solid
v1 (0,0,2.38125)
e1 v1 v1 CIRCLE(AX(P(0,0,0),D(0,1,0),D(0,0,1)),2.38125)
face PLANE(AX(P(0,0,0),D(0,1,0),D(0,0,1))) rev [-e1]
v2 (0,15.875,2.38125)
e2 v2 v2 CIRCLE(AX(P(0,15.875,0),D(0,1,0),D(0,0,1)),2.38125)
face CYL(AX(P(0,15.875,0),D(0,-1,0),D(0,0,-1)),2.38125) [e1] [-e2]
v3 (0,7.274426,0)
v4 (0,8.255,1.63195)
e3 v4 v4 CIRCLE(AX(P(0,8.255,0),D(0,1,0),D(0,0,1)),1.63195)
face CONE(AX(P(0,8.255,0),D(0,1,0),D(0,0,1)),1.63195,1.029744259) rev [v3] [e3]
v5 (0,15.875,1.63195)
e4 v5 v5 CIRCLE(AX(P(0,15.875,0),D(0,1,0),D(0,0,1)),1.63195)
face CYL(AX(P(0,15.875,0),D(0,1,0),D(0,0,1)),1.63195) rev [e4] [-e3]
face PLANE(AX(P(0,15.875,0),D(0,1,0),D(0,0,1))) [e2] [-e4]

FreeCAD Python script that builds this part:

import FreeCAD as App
import Part
import Sketcher

V = App.Vector
Q = App.Units.Quantity

doc = App.newDocument("Part")
body = doc.addObject("PartDesign::Body", "Body")

sketch1 = body.newObject("Sketcher::SketchObject", "Sketch")
sketch1.AttachmentSupport = (doc.getObject("XZ_Plane"), [""])
sketch1.MapMode = "FlatFace"
sketch1.addGeometry(Part.Circle(V(0, 0, 0), V(0, 0, 1), 2.4), False)
sketch1.addConstraint(Sketcher.Constraint("Coincident", 0, 3, -1, 1))
sketch1.addConstraint(Sketcher.Constraint("Diameter", 0, Q("0.1875 in")))
pad1 = body.newObject("PartDesign::Pad", "Pad")
pad1.Profile = sketch1
pad1.Length = Q("0.625 in")
pad1.Reversed = True

sketch2 = body.newObject("Sketcher::SketchObject", "Sketch001")
sketch2.AttachmentSupport = (doc.getObject("XZ_Plane"), [""])
sketch2.MapMode = "FlatFace"
sketch2.AttachmentOffset = App.Placement(V(0, 0, -0.625 * 25.4), App.Rotation())
sketch2.addGeometry(Part.Circle(V(0, 0, 0), V(0, 0, 1), 1.6), False)
sketch2.addConstraint(Sketcher.Constraint("Coincident", 0, 3, -1, 1))
sketch2.addConstraint(Sketcher.Constraint("Diameter", 0, Q("0.1285 in")))
doc.recompute()
hole = body.newObject("PartDesign::Hole", "Hole")
hole.Profile = sketch2
hole.ThreadType = "None"
hole.Diameter = Q("0.1285 in")
hole.DepthType = "Dimension"
hole.Depth = Q("0.3 in")
hole.DrillPoint = "Angled"
hole.DrillPointAngle = 118
hole.Reversed = True

doc.recompute()
